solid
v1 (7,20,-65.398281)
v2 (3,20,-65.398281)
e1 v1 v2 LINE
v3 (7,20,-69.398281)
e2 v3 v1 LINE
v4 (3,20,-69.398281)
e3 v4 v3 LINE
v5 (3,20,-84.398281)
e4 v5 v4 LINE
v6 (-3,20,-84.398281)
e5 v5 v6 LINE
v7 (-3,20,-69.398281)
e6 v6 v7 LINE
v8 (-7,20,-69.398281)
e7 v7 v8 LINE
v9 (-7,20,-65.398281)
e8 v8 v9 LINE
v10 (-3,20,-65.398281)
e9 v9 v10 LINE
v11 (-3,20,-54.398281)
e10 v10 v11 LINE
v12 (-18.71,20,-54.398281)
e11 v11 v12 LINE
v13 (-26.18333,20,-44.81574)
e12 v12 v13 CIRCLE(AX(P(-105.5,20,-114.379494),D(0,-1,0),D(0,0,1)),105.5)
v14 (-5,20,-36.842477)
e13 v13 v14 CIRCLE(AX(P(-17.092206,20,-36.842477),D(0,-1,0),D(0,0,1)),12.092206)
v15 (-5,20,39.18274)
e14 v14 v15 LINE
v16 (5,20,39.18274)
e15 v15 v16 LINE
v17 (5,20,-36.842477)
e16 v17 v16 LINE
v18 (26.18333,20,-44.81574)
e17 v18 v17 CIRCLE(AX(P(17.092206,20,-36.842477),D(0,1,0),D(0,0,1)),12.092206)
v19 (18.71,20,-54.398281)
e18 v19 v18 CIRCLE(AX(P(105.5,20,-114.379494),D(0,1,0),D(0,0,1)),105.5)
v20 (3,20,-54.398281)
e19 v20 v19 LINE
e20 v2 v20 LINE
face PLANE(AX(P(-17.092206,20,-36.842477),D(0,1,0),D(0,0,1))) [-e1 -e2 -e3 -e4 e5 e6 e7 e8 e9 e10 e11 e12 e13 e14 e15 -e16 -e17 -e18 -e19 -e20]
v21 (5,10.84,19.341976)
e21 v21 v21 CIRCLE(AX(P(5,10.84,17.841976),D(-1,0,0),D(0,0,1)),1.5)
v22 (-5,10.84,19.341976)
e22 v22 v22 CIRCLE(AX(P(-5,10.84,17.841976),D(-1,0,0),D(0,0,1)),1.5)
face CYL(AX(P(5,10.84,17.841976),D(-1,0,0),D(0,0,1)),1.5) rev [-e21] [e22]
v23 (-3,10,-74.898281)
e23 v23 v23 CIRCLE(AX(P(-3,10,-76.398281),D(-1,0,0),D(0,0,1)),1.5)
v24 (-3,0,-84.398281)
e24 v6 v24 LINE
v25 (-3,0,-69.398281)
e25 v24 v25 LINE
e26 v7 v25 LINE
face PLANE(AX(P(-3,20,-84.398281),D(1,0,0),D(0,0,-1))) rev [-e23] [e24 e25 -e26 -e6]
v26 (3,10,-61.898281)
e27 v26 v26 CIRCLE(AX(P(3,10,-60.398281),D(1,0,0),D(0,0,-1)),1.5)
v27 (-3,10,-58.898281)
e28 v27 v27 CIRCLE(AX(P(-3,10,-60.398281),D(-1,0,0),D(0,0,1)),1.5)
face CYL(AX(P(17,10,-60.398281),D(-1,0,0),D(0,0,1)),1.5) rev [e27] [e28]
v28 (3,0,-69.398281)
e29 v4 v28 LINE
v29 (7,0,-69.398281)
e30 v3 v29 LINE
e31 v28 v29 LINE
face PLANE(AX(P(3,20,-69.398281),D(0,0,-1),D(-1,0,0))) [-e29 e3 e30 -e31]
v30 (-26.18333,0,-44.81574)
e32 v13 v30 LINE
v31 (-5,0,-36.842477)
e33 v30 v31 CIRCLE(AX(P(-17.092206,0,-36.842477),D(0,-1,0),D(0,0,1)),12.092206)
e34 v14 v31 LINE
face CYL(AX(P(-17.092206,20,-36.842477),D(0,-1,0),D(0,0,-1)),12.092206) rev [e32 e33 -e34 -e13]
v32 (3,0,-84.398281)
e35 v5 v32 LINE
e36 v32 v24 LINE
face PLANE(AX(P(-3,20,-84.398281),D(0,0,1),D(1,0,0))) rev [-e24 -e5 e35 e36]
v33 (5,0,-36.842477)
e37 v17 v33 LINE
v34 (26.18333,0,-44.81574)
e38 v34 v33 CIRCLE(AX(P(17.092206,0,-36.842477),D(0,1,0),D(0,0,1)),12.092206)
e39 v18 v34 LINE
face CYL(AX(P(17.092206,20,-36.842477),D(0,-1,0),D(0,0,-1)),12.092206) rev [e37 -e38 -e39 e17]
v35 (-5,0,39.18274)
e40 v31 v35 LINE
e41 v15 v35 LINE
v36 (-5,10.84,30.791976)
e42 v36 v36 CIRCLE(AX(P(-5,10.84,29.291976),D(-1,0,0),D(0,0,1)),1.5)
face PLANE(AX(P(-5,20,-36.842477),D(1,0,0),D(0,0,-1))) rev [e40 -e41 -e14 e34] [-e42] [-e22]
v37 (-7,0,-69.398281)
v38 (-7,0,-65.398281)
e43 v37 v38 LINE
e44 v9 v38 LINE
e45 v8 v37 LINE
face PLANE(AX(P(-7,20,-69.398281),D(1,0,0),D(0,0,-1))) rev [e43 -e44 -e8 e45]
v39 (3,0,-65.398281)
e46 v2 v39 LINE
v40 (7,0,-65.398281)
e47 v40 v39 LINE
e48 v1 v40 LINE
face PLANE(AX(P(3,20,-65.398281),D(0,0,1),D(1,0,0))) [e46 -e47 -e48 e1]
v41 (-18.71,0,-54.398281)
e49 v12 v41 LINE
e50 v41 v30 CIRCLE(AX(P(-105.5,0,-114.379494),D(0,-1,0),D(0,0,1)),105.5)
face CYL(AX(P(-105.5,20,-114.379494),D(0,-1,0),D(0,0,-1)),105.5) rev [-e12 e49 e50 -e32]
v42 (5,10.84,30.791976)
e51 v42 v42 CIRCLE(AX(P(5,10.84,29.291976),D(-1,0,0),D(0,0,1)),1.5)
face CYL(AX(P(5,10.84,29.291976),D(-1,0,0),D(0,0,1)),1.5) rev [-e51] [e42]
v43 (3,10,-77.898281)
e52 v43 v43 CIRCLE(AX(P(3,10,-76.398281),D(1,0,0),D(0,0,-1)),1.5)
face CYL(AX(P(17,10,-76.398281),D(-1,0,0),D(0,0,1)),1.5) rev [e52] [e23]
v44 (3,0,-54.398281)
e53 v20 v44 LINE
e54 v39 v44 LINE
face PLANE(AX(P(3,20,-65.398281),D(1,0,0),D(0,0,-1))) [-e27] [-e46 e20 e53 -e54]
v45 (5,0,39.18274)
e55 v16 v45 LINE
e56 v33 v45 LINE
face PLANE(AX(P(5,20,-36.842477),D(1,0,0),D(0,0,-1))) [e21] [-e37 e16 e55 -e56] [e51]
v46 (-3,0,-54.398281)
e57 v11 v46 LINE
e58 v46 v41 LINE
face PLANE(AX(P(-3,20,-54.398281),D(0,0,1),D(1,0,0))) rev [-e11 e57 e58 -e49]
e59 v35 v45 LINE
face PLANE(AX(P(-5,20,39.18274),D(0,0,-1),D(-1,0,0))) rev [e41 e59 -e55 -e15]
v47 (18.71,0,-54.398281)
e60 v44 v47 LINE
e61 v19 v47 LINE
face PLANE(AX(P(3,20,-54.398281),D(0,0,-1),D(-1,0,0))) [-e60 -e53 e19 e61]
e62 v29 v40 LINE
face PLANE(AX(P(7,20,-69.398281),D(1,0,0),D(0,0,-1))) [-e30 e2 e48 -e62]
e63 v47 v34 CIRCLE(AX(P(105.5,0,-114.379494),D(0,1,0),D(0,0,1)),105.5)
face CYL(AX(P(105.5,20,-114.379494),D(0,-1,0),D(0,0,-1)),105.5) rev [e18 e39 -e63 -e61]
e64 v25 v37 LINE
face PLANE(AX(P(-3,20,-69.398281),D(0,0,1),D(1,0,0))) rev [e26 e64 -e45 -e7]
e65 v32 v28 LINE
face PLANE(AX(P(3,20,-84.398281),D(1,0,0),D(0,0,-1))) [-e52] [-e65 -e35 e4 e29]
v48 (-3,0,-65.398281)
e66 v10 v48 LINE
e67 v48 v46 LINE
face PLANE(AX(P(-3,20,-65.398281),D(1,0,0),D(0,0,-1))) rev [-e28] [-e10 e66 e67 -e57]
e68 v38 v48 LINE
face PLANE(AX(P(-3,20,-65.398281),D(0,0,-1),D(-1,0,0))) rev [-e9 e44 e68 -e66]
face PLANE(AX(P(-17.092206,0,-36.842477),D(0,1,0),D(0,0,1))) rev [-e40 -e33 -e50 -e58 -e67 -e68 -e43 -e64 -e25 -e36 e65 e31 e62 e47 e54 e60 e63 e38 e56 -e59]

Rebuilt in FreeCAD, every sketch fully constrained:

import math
import FreeCAD as App
import Part
import Sketcher
Q = App.Units.Quantity

doc = App.newDocument("Part")
params = doc.addObject("Spreadsheet::Sheet", "Params")
for row, (alias, value) in enumerate([
    ("sketch1_radius", "105.5 mm"),
    ("sketch1_width", "4 mm"),
    ("sketch1_width2", "5 mm"),
    ("sketch1_width3", "3 mm"),
    ("sketch1_height", "15 mm"),
    ("pad1_length", "20 mm"),
    ("sketch2_diameter", "3 mm"),
    ("pocket1_length", "20 mm"),
    ("sketch3_diameter", "3 mm"),
    ("pocket2_length", "10 mm"),
    ("sketch4_diameter", "3 mm"),
    ("pocket3_length", "10 mm"),
], start=1):
    params.set(f"A{row}", alias)
    params.set(f"B{row}", "=" + value)
    params.setAlias(f"B{row}", alias)

body = doc.addObject("PartDesign::Body", "Body")

# Sketch on XZ plane
sketch1 = body.newObject("Sketcher::SketchObject", "Sketch")
sketch1.AttachmentSupport = (doc.getObject("XZ_Plane"), [""])
sketch1.MapMode = "FlatFace"
sketch1.addGeometry([
    Part.LineSegment(App.Vector(-3, -84.398281, 0), App.Vector(-3, -69.398281, 0)),  # 0
    Part.LineSegment(App.Vector(-3, -69.398281, 0), App.Vector(-7, -69.398281, 0)),  # 1
    Part.LineSegment(App.Vector(-7, -69.398281, 0), App.Vector(-7, -65.398281, 0)),  # 2
    Part.LineSegment(App.Vector(-7, -65.398281, 0), App.Vector(-3, -65.398281, 0)),  # 3
    Part.LineSegment(App.Vector(-3, -65.398281, 0), App.Vector(-3, -54.398281, 0)),  # 4
    Part.LineSegment(App.Vector(-3, -54.398281, 0), App.Vector(-18.71, -54.398281, 0)),  # 5
    Part.ArcOfCircle(Part.Circle(App.Vector(-105.5, -114.379494, 0), App.Vector(0, 0, 1), 105.5), math.radians(34.648638), math.radians(41.252001)),  # 6
    Part.ArcOfCircle(Part.Circle(App.Vector(-17.092206, -36.842477, 0), App.Vector(0, 0, 1), 12.092206), math.radians(-138.747999), math.radians(0)),  # 7
    Part.LineSegment(App.Vector(-5, -36.842477, 0), App.Vector(-5, 39.18274, 0)),  # 8
    Part.LineSegment(App.Vector(-5, 39.18274, 0), App.Vector(0, 39.18274, 0)),  # 9
    Part.LineSegment(App.Vector(0, 39.18274, 0), App.Vector(0, -84.398281, 0)),  # 10
    Part.LineSegment(App.Vector(0, -84.398281, 0), App.Vector(-3, -84.398281, 0)),  # 11
], False)
sketch1.addConstraint([
    Sketcher.Constraint("Coincident", 0, 2, 1, 1),
    Sketcher.Constraint("Coincident", 1, 2, 2, 1),
    Sketcher.Constraint("Coincident", 2, 2, 3, 1),
    Sketcher.Constraint("Coincident", 3, 2, 4, 1),
    Sketcher.Constraint("Coincident", 4, 2, 5, 1),
    Sketcher.Constraint("Coincident", 5, 2, 6, 1),
    Sketcher.Constraint("Tangent", 6, 2, 7, 1),
    Sketcher.Constraint("Tangent", 7, 2, 8, 1),
    Sketcher.Constraint("Coincident", 8, 2, 9, 1),
    Sketcher.Constraint("Coincident", 9, 2, 10, 1),
    Sketcher.Constraint("Coincident", 10, 2, 11, 1),
    Sketcher.Constraint("Coincident", 11, 2, 0, 1),
    Sketcher.Constraint("Vertical", 0),
    Sketcher.Constraint("Horizontal", 1),
    Sketcher.Constraint("Vertical", 2),
    Sketcher.Constraint("Horizontal", 3),
    Sketcher.Constraint("Vertical", 4),
    Sketcher.Constraint("Horizontal", 5),
    Sketcher.Constraint("Vertical", 8),
    Sketcher.Constraint("Horizontal", 9),
    Sketcher.Constraint("Vertical", 10),
    Sketcher.Constraint("Horizontal", 11),
    Sketcher.Constraint("PointOnObject", 9, 2, -2),
    Sketcher.Constraint("Vertical", 0, 2, 3, 2),
    Sketcher.Constraint("Equal", 3, 2),
    Sketcher.Constraint("Radius", 6, Q("105.5 mm")),
    Sketcher.Constraint("DistanceX", 1, 2, 1, 1, Q("4 mm")),
    Sketcher.Constraint("DistanceX", 9, 1, 9, 2, Q("5 mm")),
    Sketcher.Constraint("DistanceX", 11, 2, 11, 1, Q("3 mm")),
    Sketcher.Constraint("DistanceY", 0, 1, 0, 2, Q("15 mm")),
    Sketcher.Constraint("DistanceY", 4, 1, 4, 2, Q("11 mm")),
    Sketcher.Constraint("DistanceX", 5, 2, 5, 1, Q("15.71 mm")),
    Sketcher.Constraint("DistanceX", 6, 3, -1, 1, Q("105.5 mm")),
    Sketcher.Constraint("Radius", 7, Q("12.092206 mm")),
    Sketcher.Constraint("DistanceY", 10, 2, 10, 1, Q("123.581021 mm")),
    Sketcher.Constraint("DistanceY", 0, 2, -1, 1, Q("69.398281 mm")),
])
sketch1.setExpression("Constraints[25]", "Params.sketch1_radius")
sketch1.setExpression("Constraints[26]", "Params.sketch1_width")
sketch1.setExpression("Constraints[27]", "Params.sketch1_width2")
sketch1.setExpression("Constraints[28]", "Params.sketch1_width3")
sketch1.setExpression("Constraints[29]", "Params.sketch1_height")
pad1 = body.newObject("PartDesign::Pad", "Pad")
pad1.Profile = sketch1
pad1.setExpression("Length", "Params.pad1_length")
pad1.Reversed = True
doc.recompute()

mirrored = body.newObject("PartDesign::Mirrored", "Mirrored")
mirrored.Originals = [pad1]
mirrored.MirrorPlane = (doc.getObject("YZ_Plane"), [""])
body.Tip = mirrored

# Sketch on YZ plane
sketch2 = body.newObject("Sketcher::SketchObject", "Sketch001")
sketch2.AttachmentSupport = (doc.getObject("YZ_Plane"), [""])
sketch2.MapMode = "FlatFace"
sketch2.AttachmentOffset = App.Placement(App.Vector(0, 0, -3), App.Rotation())
sketch2.addGeometry([
    Part.Circle(App.Vector(10, -76.398281, 0), App.Vector(0, 0, 1), 1.5),
    Part.Circle(App.Vector(10, -60.398281, 0), App.Vector(0, 0, 1), 1.5),
], False)
sketch2.addConstraint([
    Sketcher.Constraint("Equal", 0, 1),
    Sketcher.Constraint("Vertical", 0, 3, 1, 3),
    Sketcher.Constraint("Diameter", 0, Q("3 mm")),
    Sketcher.Constraint("DistanceX", -1, 1, 0, 3, Q("10 mm")),
    Sketcher.Constraint("DistanceY", 0, 3, 1, 3, Q("16 mm")),
    Sketcher.Constraint("DistanceY", 0, 3, -1, 1, Q("76.398281 mm")),
])
sketch2.setExpression("Constraints[2]", "Params.sketch2_diameter")
pocket1 = body.newObject("PartDesign::Pocket", "Pocket")
pocket1.Profile = sketch2
pocket1.setExpression("Length", "Params.pocket1_length")
pocket1.Reversed = True

# Sketch on YZ plane
sketch3 = body.newObject("Sketcher::SketchObject", "Sketch002")
sketch3.AttachmentSupport = (doc.getObject("YZ_Plane"), [""])
sketch3.MapMode = "FlatFace"
sketch3.AttachmentOffset = App.Placement(App.Vector(0, 0, -5), App.Rotation())
sketch3.addGeometry(Part.Circle(App.Vector(10.84, 29.291976, 0), App.Vector(0, 0, 1), 1.5), False)
sketch3.addConstraint([
    Sketcher.Constraint("Diameter", 0, Q("3 mm")),
    Sketcher.Constraint("DistanceX", -1, 1, 0, 3, Q("10.84 mm")),
    Sketcher.Constraint("DistanceY", -1, 1, 0, 3, Q("29.291976 mm")),
])
sketch3.setExpression("Constraints[0]", "Params.sketch3_diameter")
pocket2 = body.newObject("PartDesign::Pocket", "Pocket001")
pocket2.Profile = sketch3
pocket2.setExpression("Length", "Params.pocket2_length")
pocket2.Reversed = True

# Sketch on YZ plane
sketch4 = body.newObject("Sketcher::SketchObject", "Sketch003")
sketch4.AttachmentSupport = (doc.getObject("YZ_Plane"), [""])
sketch4.MapMode = "FlatFace"
sketch4.AttachmentOffset = App.Placement(App.Vector(0, 0, -5), App.Rotation())
sketch4.addGeometry(Part.Circle(App.Vector(10.84, 17.841976, 0), App.Vector(0, 0, 1), 1.5), False)
sketch4.addConstraint([
    Sketcher.Constraint("Diameter", 0, Q("3 mm")),
    Sketcher.Constraint("DistanceX", -1, 1, 0, 3, Q("10.84 mm")),
    Sketcher.Constraint("DistanceY", -1, 1, 0, 3, Q("17.841976 mm")),
])
sketch4.setExpression("Constraints[0]", "Params.sketch4_diameter")
pocket3 = body.newObject("PartDesign::Pocket", "Pocket002")
pocket3.Profile = sketch4
pocket3.setExpression("Length", "Params.pocket3_length")
pocket3.Reversed = True

doc.recompute()
